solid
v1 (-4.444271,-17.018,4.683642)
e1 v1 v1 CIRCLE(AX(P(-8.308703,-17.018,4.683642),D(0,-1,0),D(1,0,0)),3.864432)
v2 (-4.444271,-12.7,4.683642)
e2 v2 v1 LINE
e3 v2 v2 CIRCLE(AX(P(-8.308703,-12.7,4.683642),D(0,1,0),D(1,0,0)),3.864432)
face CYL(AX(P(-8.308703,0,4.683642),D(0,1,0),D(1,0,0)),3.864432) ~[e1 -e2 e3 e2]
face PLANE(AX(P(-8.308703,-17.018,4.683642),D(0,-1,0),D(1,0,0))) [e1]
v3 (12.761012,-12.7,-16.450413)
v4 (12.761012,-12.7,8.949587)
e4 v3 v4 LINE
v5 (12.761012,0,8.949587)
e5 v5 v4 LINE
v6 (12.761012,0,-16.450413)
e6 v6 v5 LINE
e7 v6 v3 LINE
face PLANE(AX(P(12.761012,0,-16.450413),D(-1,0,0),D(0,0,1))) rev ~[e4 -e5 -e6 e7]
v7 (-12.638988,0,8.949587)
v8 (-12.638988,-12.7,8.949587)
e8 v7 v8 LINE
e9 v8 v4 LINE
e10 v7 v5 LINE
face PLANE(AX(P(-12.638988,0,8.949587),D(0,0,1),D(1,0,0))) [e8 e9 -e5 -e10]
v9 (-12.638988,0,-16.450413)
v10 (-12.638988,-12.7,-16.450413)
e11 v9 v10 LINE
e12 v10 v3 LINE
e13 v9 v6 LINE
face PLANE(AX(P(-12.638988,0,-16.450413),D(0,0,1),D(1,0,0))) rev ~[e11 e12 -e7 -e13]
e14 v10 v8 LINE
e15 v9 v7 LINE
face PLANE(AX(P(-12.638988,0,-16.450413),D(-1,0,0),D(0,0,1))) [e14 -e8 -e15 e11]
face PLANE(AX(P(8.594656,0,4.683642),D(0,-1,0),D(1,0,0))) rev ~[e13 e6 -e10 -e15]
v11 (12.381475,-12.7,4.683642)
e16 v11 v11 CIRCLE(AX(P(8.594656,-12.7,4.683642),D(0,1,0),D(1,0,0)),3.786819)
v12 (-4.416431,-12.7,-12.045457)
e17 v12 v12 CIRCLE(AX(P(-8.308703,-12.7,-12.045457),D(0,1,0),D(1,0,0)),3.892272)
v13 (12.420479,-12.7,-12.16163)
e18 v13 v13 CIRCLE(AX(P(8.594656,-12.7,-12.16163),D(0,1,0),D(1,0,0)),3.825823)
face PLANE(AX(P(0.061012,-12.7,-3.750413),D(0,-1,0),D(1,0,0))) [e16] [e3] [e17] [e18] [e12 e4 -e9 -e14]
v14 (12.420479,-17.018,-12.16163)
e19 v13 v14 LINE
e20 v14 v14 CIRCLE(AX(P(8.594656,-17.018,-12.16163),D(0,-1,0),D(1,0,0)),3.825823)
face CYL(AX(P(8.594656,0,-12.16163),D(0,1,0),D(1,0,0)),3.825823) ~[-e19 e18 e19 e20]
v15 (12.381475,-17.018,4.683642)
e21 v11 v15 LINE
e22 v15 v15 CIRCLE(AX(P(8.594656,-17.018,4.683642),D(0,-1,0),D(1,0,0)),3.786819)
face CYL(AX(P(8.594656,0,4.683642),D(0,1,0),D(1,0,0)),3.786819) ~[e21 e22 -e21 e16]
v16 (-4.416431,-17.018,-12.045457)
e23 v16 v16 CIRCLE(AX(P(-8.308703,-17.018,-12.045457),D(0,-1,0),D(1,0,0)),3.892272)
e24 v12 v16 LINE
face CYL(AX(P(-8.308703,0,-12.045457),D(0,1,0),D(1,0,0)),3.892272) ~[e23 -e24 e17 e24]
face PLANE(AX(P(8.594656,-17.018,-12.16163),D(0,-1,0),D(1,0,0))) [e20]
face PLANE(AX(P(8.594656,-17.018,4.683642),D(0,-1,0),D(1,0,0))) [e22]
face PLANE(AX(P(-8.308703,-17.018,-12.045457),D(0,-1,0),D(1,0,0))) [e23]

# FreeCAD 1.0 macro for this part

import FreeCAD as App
import Part
import Sketcher
from FreeCAD import Vector
Q = App.Units.Quantity

doc = App.newDocument("Part")
body = doc.addObject("PartDesign::Body", "Body")

# Sketch on XZ plane
sketch1 = body.newObject("Sketcher::SketchObject", "Sketch")
sketch1.AttachmentSupport = (doc.getObject("XZ_Plane"), [""])
sketch1.MapMode = "FlatFace"
sketch1.addGeometry([
    Part.LineSegment(Vector(-13, 9, 0), Vector(-13, -16, 0)),
    Part.LineSegment(Vector(-13, -16, 0), Vector(13, -16, 0)),
    Part.LineSegment(Vector(13, -16, 0), Vector(13, 9, 0)),
    Part.LineSegment(Vector(13, 9, 0), Vector(-13, 9, 0)),
], False)
sketch1.addConstraint([
    Sketcher.Constraint("Coincident", 0, 2, 1, 1),
    Sketcher.Constraint("Coincident", 1, 2, 2, 1),
    Sketcher.Constraint("Coincident", 2, 2, 3, 1),
    Sketcher.Constraint("Coincident", 3, 2, 0, 1),
    Sketcher.Constraint("Vertical", 0),
    Sketcher.Constraint("Horizontal", 1),
    Sketcher.Constraint("Vertical", 2),
    Sketcher.Constraint("Horizontal", 3),
    Sketcher.Constraint("Equal", 3, 0),
    Sketcher.Constraint("DistanceX", 1, 1, 1, 2, Q("1 in")),
    Sketcher.Constraint("DistanceX", -1, 1, 1, 2, Q("12.761012 mm")),
    Sketcher.Constraint("DistanceY", 0, 2, -1, 1, Q("16.450413 mm")),
])
pad1 = body.newObject("PartDesign::Pad", "Pad")
pad1.Profile = sketch1
pad1.Length = Q("0.5 in")

# Sketch on XZ plane
sketch2 = body.newObject("Sketcher::SketchObject", "Sketch001")
sketch2.AttachmentSupport = (doc.getObject("XZ_Plane"), [""])
sketch2.MapMode = "FlatFace"
sketch2.addGeometry(Part.Circle(Vector(-8.3, -12, 0), Vector(0, 0, 1), 3.9), False)
sketch2.addConstraint([
    Sketcher.Constraint("Diameter", 0, Q("7.784544 mm")),
    Sketcher.Constraint("DistanceX", 0, 3, -1, 1, Q("8.308703 mm")),
    Sketcher.Constraint("DistanceY", 0, 3, -1, 1, Q("12.045457 mm")),
])
pad2 = body.newObject("PartDesign::Pad", "Pad001")
pad2.Profile = sketch2
pad2.Length = Q("0.67 in")

# Sketch on XZ plane
sketch3 = body.newObject("Sketcher::SketchObject", "Sketch002")
sketch3.AttachmentSupport = (doc.getObject("XZ_Plane"), [""])
sketch3.MapMode = "FlatFace"
sketch3.addGeometry(Part.Circle(Vector(8.6, -12.2, 0), Vector(0, 0, 1), 3.8), False)
sketch3.addConstraint([
    Sketcher.Constraint("Diameter", 0, Q("7.651646 mm")),
    Sketcher.Constraint("DistanceY", 0, 3, -1, 1, Q("12.16163 mm")),
    Sketcher.Constraint("DistanceX", -1, 1, 0, 3, Q("8.594656 mm")),
])
pad3 = body.newObject("PartDesign::Pad", "Pad002")
pad3.Profile = sketch3
pad3.Length = Q("0.67 in")

# Sketch on XZ plane
sketch4 = body.newObject("Sketcher::SketchObject", "Sketch003")
sketch4.AttachmentSupport = (doc.getObject("XZ_Plane"), [""])
sketch4.MapMode = "FlatFace"
sketch4.addGeometry(Part.Circle(Vector(-8.3, 4.7, 0), Vector(0, 0, 1), 3.9), False)
sketch4.addConstraint([
    Sketcher.Constraint("Diameter", 0, Q("7.728864 mm")),
    Sketcher.Constraint("DistanceX", 0, 3, -1, 1, Q("8.308703 mm")),
    Sketcher.Constraint("DistanceY", -1, 1, 0, 3, Q("4.683642 mm")),
])
pad4 = body.newObject("PartDesign::Pad", "Pad003")
pad4.Profile = sketch4
pad4.Length = Q("0.67 in")

# Sketch on XZ plane
sketch5 = body.newObject("Sketcher::SketchObject", "Sketch004")
sketch5.AttachmentSupport = (doc.getObject("XZ_Plane"), [""])
sketch5.MapMode = "FlatFace"
sketch5.addGeometry(Part.Circle(Vector(8.6, 4.7, 0), Vector(0, 0, 1), 3.8), False)
sketch5.addConstraint([
    Sketcher.Constraint("Diameter", 0, Q("7.573638 mm")),
    Sketcher.Constraint("DistanceX", -1, 1, 0, 3, Q("8.594656 mm")),
    Sketcher.Constraint("DistanceY", -1, 1, 0, 3, Q("4.683642 mm")),
])
pad5 = body.newObject("PartDesign::Pad", "Pad004")
pad5.Profile = sketch5
pad5.Length = Q("0.67 in")

doc.recompute()
